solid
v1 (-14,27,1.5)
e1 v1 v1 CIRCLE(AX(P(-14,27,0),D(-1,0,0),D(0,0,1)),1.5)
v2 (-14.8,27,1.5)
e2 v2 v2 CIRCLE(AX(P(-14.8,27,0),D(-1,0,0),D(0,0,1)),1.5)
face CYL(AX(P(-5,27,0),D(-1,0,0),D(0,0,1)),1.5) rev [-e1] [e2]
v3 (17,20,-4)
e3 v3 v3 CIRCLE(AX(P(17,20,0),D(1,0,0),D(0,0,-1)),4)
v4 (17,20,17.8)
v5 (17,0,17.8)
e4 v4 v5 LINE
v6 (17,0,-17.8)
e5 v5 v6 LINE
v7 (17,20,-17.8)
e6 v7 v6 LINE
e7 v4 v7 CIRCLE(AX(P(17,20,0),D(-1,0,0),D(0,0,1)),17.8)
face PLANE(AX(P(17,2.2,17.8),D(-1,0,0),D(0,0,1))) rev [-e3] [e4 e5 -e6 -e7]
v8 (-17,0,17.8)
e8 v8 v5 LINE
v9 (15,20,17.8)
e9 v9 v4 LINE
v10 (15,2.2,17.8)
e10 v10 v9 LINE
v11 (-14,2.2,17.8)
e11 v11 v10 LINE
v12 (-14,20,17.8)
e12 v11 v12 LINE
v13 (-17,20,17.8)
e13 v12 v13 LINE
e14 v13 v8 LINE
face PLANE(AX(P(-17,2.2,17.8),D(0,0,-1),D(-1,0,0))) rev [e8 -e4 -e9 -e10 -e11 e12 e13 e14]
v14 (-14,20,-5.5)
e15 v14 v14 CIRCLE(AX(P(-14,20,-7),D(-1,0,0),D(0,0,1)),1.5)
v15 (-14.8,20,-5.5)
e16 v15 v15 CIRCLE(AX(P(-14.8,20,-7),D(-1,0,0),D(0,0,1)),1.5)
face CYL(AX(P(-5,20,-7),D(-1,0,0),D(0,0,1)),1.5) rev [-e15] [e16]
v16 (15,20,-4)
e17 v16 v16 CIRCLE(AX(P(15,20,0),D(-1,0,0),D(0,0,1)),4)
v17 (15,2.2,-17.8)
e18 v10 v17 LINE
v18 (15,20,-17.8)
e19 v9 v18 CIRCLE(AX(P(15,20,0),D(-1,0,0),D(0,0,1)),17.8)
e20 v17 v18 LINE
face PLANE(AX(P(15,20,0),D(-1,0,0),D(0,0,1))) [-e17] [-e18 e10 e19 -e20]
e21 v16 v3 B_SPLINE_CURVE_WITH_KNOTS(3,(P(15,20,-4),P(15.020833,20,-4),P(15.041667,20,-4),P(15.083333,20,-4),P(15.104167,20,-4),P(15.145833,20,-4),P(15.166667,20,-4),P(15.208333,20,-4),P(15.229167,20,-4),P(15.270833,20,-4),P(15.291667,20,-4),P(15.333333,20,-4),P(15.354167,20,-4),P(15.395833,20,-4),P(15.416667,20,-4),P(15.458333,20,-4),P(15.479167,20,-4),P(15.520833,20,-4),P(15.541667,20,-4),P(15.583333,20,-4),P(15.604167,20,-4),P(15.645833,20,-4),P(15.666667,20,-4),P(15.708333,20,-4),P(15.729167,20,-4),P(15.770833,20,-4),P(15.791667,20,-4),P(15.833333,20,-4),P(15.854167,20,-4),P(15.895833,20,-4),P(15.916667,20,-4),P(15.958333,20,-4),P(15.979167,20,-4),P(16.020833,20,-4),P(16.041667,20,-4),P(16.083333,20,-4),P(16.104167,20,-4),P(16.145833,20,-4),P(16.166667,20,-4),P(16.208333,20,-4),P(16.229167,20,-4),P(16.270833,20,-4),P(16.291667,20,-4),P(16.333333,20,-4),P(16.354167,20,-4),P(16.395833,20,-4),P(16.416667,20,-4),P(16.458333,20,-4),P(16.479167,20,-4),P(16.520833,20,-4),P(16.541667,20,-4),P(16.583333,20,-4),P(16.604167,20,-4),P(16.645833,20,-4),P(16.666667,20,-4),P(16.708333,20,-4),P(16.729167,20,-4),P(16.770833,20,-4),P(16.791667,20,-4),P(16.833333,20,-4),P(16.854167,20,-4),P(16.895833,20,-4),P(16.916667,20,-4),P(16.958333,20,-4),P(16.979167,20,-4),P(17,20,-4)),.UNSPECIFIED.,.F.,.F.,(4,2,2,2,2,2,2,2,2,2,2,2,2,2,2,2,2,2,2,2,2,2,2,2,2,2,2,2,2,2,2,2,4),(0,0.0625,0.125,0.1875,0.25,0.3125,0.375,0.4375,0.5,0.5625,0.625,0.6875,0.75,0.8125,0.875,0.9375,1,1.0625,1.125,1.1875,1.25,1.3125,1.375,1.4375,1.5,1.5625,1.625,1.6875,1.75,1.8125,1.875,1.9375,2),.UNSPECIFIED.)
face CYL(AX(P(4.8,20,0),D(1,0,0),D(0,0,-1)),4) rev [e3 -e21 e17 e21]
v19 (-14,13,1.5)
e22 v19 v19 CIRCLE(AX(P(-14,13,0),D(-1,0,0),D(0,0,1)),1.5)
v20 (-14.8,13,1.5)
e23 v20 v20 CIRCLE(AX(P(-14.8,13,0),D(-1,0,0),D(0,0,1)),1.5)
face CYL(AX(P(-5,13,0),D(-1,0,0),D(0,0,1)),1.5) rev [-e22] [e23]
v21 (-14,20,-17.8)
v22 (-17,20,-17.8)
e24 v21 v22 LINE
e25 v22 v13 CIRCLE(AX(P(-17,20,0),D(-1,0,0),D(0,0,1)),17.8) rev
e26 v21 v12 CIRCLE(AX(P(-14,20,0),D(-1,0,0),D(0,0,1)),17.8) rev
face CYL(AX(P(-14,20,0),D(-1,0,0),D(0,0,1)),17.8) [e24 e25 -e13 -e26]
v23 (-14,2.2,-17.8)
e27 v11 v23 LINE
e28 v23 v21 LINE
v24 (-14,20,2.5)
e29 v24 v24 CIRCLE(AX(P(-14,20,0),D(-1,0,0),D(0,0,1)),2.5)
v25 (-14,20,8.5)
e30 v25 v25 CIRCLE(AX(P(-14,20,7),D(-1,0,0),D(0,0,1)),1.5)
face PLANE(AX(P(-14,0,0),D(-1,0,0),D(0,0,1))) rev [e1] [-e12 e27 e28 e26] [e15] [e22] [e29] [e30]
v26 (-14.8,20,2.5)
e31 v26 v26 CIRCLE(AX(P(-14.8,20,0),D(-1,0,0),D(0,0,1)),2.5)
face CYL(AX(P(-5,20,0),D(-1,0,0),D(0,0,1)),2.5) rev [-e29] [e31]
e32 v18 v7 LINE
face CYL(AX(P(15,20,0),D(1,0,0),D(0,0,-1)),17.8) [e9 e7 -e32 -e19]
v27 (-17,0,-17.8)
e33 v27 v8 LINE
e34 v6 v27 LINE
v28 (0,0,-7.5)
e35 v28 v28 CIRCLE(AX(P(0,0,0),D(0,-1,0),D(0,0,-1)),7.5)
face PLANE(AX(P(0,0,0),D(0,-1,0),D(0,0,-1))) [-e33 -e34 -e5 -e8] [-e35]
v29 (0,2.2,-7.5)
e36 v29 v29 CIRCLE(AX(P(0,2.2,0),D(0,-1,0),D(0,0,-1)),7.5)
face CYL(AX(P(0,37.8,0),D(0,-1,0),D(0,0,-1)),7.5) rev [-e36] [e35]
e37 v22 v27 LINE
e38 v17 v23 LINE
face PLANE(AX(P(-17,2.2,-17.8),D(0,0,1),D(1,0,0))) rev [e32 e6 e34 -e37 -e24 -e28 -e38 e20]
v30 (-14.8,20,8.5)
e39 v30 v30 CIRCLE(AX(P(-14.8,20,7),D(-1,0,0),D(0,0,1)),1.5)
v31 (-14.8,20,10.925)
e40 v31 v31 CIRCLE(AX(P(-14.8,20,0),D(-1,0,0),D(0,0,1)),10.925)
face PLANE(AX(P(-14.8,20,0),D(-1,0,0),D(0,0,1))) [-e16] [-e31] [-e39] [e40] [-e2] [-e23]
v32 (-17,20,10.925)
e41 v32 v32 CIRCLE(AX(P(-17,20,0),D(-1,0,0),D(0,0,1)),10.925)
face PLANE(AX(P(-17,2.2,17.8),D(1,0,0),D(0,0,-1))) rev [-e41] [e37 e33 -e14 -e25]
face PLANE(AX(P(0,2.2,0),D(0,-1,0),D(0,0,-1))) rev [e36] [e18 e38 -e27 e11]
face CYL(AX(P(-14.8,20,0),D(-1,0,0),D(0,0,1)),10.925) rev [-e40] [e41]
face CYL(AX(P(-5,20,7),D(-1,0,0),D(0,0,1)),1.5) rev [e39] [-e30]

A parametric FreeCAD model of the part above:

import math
import FreeCAD as App
import Part
import Sketcher
Q = App.Units.Quantity

doc = App.newDocument("Part")
params = doc.addObject("Spreadsheet::Sheet", "Params")
for row, (alias, value) in enumerate([
    ("sketch1_width", "34 mm"),
    ("sketch1_height", "35.6 mm"),
    ("pad1_length", "2.2 mm"),
    ("sketch2_radius", "17.8 mm"),
    ("sketch2_width", "17.8 mm"),
    ("pad2_length", "3 mm"),
    ("sketch3_radius", "17.8 mm"),
    ("sketch3_width", "17.8 mm"),
    ("pad3_length", "2 mm"),
    ("sketch4_diameter", "5 mm"),
    ("sketch4_diameter2", "3 mm"),
    ("pocket1_length", "12 mm"),
    ("sketch5_diameter", "3 mm"),
    ("sketch5_diameter2", "5 mm"),
    ("sketch5_diameter3", "21.85 mm"),
    ("pocket2_length", "2.2 mm"),
    ("sketch6_diameter", "8 mm"),
    ("pocket3_length", "12.2 mm"),
    ("sketch7_diameter", "15 mm"),
], start=1):
    params.set(f"A{row}", alias)
    params.set(f"B{row}", "=" + value)
    params.setAlias(f"B{row}", alias)

body = doc.addObject("PartDesign::Body", "Body")

# Sketch on XZ plane
sketch1 = body.newObject("Sketcher::SketchObject", "Sketch")
sketch1.AttachmentSupport = (doc.getObject("XZ_Plane"), [""])
sketch1.MapMode = "FlatFace"
sketch1.addGeometry(Part.LineSegment(App.Vector(-17, -18, 0), App.Vector(-17, 18, 0)), False)
sketch1.addGeometry(Part.LineSegment(App.Vector(-17, 18, 0), App.Vector(17, 18, 0)), False)
sketch1.addGeometry(Part.LineSegment(App.Vector(17, 18, 0), App.Vector(17, -18, 0)), False)
sketch1.addGeometry(Part.LineSegment(App.Vector(17, -18, 0), App.Vector(-17, -18, 0)), False)
sketch1.addConstraint(Sketcher.Constraint("Coincident", 0, 2, 1, 1))
sketch1.addConstraint(Sketcher.Constraint("Coincident", 1, 2, 2, 1))
sketch1.addConstraint(Sketcher.Constraint("Coincident", 2, 2, 3, 1))
sketch1.addConstraint(Sketcher.Constraint("Coincident", 3, 2, 0, 1))
sketch1.addConstraint(Sketcher.Constraint("Vertical", 0))
sketch1.addConstraint(Sketcher.Constraint("Horizontal", 1))
sketch1.addConstraint(Sketcher.Constraint("Vertical", 2))
sketch1.addConstraint(Sketcher.Constraint("Horizontal", 3))
sketch1.addConstraint(Sketcher.Constraint("Symmetric", 0, 2, 2, 2, -1, 1))
sketch1.addConstraint(Sketcher.Constraint("DistanceX", 1, 1, 1, 2, Q("34 mm")))
sketch1.addConstraint(Sketcher.Constraint("DistanceY", 0, 1, 0, 2, Q("35.6 mm")))
sketch1.setExpression("Constraints[9]", "Params.sketch1_width")
sketch1.setExpression("Constraints[10]", "Params.sketch1_height")
pad1 = body.newObject("PartDesign::Pad", "Pad")
pad1.Profile = sketch1
pad1.setExpression("Length", "Params.pad1_length")
pad1.Reversed = True

# Sketch on YZ plane
sketch2 = body.newObject("Sketcher::SketchObject", "Sketch001")
sketch2.AttachmentSupport = (doc.getObject("YZ_Plane"), [""])
sketch2.MapMode = "FlatFace"
sketch2.AttachmentOffset = App.Placement(App.Vector(0, 0, -17), App.Rotation())
sketch2.addGeometry(Part.LineSegment(App.Vector(2, 18, 0), App.Vector(20, 18, 0)), False)
sketch2.addGeometry(Part.ArcOfCircle(Part.Circle(App.Vector(20, 0, 0), App.Vector(0, 0, 1), 18), math.radians(0), math.radians(90)), False)
sketch2.addGeometry(Part.ArcOfCircle(Part.Circle(App.Vector(20, 0, 0), App.Vector(0, 0, 1), 18), math.radians(-90), math.radians(0)), False)
sketch2.addGeometry(Part.LineSegment(App.Vector(20, -18, 0), App.Vector(2, -18, 0)), False)
sketch2.addGeometry(Part.LineSegment(App.Vector(2, -18, 0), App.Vector(2, 18, 0)), False)
sketch2.addConstraint(Sketcher.Constraint("Tangent", 0, 2, 1, 2))
sketch2.addConstraint(Sketcher.Constraint("Tangent", 1, 1, 2, 2))
sketch2.addConstraint(Sketcher.Constraint("Tangent", 2, 1, 3, 1))
sketch2.addConstraint(Sketcher.Constraint("Coincident", 3, 2, 4, 1))
sketch2.addConstraint(Sketcher.Constraint("Coincident", 4, 2, 0, 1))
sketch2.addConstraint(Sketcher.Constraint("Horizontal", 0))
sketch2.addConstraint(Sketcher.Constraint("Horizontal", 3))
sketch2.addConstraint(Sketcher.Constraint("Vertical", 4))
sketch2.addConstraint(Sketcher.Constraint("Equal", 1, 2))
sketch2.addConstraint(Sketcher.Constraint("PointOnObject", 1, 3, -1))
sketch2.addConstraint(Sketcher.Constraint("PointOnObject", 1, 1, -1))
sketch2.addConstraint(Sketcher.Constraint("Radius", 1, Q("17.8 mm")))
sketch2.addConstraint(Sketcher.Constraint("DistanceX", 0, 1, 0, 2, Q("17.8 mm")))
sketch2.addConstraint(Sketcher.Constraint("DistanceX", -1, 1, 1, 3, Q("20 mm")))
sketch2.setExpression("Constraints[11]", "Params.sketch2_radius")
sketch2.setExpression("Constraints[12]", "Params.sketch2_width")
pad2 = body.newObject("PartDesign::Pad", "Pad001")
pad2.Profile = sketch2
pad2.setExpression("Length", "Params.pad2_length")

# Sketch on YZ plane
sketch3 = body.newObject("Sketcher::SketchObject", "Sketch002")
sketch3.AttachmentSupport = (doc.getObject("YZ_Plane"), [""])
sketch3.MapMode = "FlatFace"
sketch3.AttachmentOffset = App.Placement(App.Vector(0, 0, 15), App.Rotation())
sketch3.addGeometry(Part.LineSegment(App.Vector(2, -18, 0), App.Vector(2, 18, 0)), False)
sketch3.addGeometry(Part.LineSegment(App.Vector(2, 18, 0), App.Vector(20, 18, 0)), False)
sketch3.addGeometry(Part.ArcOfCircle(Part.Circle(App.Vector(20, 0, 0), App.Vector(0, 0, 1), 18), math.radians(0), math.radians(90)), False)
sketch3.addGeometry(Part.ArcOfCircle(Part.Circle(App.Vector(20, 0, 0), App.Vector(0, 0, 1), 18), math.radians(-90), math.radians(0)), False)
sketch3.addGeometry(Part.LineSegment(App.Vector(20, -18, 0), App.Vector(2, -18, 0)), False)
sketch3.addConstraint(Sketcher.Constraint("Coincident", 0, 2, 1, 1))
sketch3.addConstraint(Sketcher.Constraint("Tangent", 1, 2, 2, 2))
sketch3.addConstraint(Sketcher.Constraint("Tangent", 2, 1, 3, 2))
sketch3.addConstraint(Sketcher.Constraint("Tangent", 3, 1, 4, 1))
sketch3.addConstraint(Sketcher.Constraint("Coincident", 4, 2, 0, 1))
sketch3.addConstraint(Sketcher.Constraint("Vertical", 0))
sketch3.addConstraint(Sketcher.Constraint("Horizontal", 1))
sketch3.addConstraint(Sketcher.Constraint("Horizontal", 4))
sketch3.addConstraint(Sketcher.Constraint("Equal", 2, 3))
sketch3.addConstraint(Sketcher.Constraint("PointOnObject", 2, 3, -1))
sketch3.addConstraint(Sketcher.Constraint("PointOnObject", 2, 1, -1))
sketch3.addConstraint(Sketcher.Constraint("Radius", 2, Q("17.8 mm")))
sketch3.addConstraint(Sketcher.Constraint("DistanceX", 1, 1, 1, 2, Q("17.8 mm")))
sketch3.addConstraint(Sketcher.Constraint("DistanceX", -1, 1, 2, 3, Q("20 mm")))
sketch3.setExpression("Constraints[11]", "Params.sketch3_radius")
sketch3.setExpression("Constraints[12]", "Params.sketch3_width")
pad3 = body.newObject("PartDesign::Pad", "Pad002")
pad3.Profile = sketch3
pad3.setExpression("Length", "Params.pad3_length")

# Sketch on YZ plane
sketch4 = body.newObject("Sketcher::SketchObject", "Sketch003")
sketch4.AttachmentSupport = (doc.getObject("YZ_Plane"), [""])
sketch4.MapMode = "FlatFace"
sketch4.AttachmentOffset = App.Placement(App.Vector(0, 0, -17), App.Rotation())
sketch4.addGeometry(Part.Circle(App.Vector(20, 0, 0), App.Vector(0, 0, 1), 2.5), False)
sketch4.addGeometry(Part.Circle(App.Vector(20, 7, 0), App.Vector(0, 0, 1), 1.5), False)
sketch4.addGeometry(Part.Circle(App.Vector(27, 0, 0), App.Vector(0, 0, 1), 1.5), False)
sketch4.addGeometry(Part.Circle(App.Vector(20, -7, 0), App.Vector(0, 0, 1), 1.5), False)
sketch4.addGeometry(Part.Circle(App.Vector(13, 0, 0), App.Vector(0, 0, 1), 1.5), False)
sketch4.addConstraint(Sketcher.Constraint("Equal", 1, 2))
sketch4.addConstraint(Sketcher.Constraint("Equal", 2, 3))
sketch4.addConstraint(Sketcher.Constraint("Equal", 3, 4))
sketch4.addConstraint(Sketcher.Constraint("Symmetric", 1, 3, 3, 3, -1))
sketch4.addConstraint(Sketcher.Constraint("PointOnObject", 0, 3, -1))
sketch4.addConstraint(Sketcher.Constraint("PointOnObject", 2, 3, -1))
sketch4.addConstraint(Sketcher.Constraint("PointOnObject", 4, 3, -1))
sketch4.addConstraint(Sketcher.Constraint("Vertical", 0, 3, 1, 3))
sketch4.addConstraint(Sketcher.Constraint("Diameter", 0, Q("5 mm")))
sketch4.addConstraint(Sketcher.Constraint("Diameter", 1, Q("3 mm")))
sketch4.addConstraint(Sketcher.Constraint("DistanceX", -1, 1, 0, 3, Q("20 mm")))
sketch4.addConstraint(Sketcher.Constraint("DistanceY", -1, 1, 1, 3, Q("7 mm")))
sketch4.addConstraint(Sketcher.Constraint("DistanceX", -1, 1, 2, 3, Q("27 mm")))
sketch4.addConstraint(Sketcher.Constraint("DistanceX", -1, 1, 4, 3, Q("13 mm")))
sketch4.setExpression("Constraints[8]", "Params.sketch4_diameter")
sketch4.setExpression("Constraints[9]", "Params.sketch4_diameter2")
pocket1 = body.newObject("PartDesign::Pocket", "Pocket")
pocket1.Profile = sketch4
pocket1.setExpression("Length", "Params.pocket1_length")
pocket1.Reversed = True

# Sketch on YZ plane
sketch5 = body.newObject("Sketcher::SketchObject", "Sketch004")
sketch5.AttachmentSupport = (doc.getObject("YZ_Plane"), [""])
sketch5.MapMode = "FlatFace"
sketch5.AttachmentOffset = App.Placement(App.Vector(0, 0, -17), App.Rotation())
sketch5.addGeometry(Part.Circle(App.Vector(20, 0, 0), App.Vector(0, 0, 1), 10.9), False)
sketch5.addGeometry(Part.Circle(App.Vector(20, -7, 0), App.Vector(0, 0, 1), 1.5), False)
sketch5.addGeometry(Part.Circle(App.Vector(13, 0, 0), App.Vector(0, 0, 1), 1.5), False)
sketch5.addGeometry(Part.Circle(App.Vector(20, 7, 0), App.Vector(0, 0, 1), 1.5), False)
sketch5.addGeometry(Part.Circle(App.Vector(20, 0, 0), App.Vector(0, 0, 1), 2.5), False)
sketch5.addGeometry(Part.Circle(App.Vector(27, 0, 0), App.Vector(0, 0, 1), 1.5), False)
sketch5.addConstraint(Sketcher.Constraint("Coincident", 4, 3, 0, 3))
sketch5.addConstraint(Sketcher.Constraint("Equal", 1, 2))
sketch5.addConstraint(Sketcher.Constraint("Equal", 2, 3))
sketch5.addConstraint(Sketcher.Constraint("Equal", 3, 5))
sketch5.addConstraint(Sketcher.Constraint("Symmetric", 1, 3, 3, 3, -1))
sketch5.addConstraint(Sketcher.Constraint("PointOnObject", 0, 3, -1))
sketch5.addConstraint(Sketcher.Constraint("PointOnObject", 2, 3, -1))
sketch5.addConstraint(Sketcher.Constraint("PointOnObject", 5, 3, -1))
sketch5.addConstraint(Sketcher.Constraint("Vertical", 0, 3, 1, 3))
sketch5.addConstraint(Sketcher.Constraint("Diameter", 1, Q("3 mm")))
sketch5.addConstraint(Sketcher.Constraint("Diameter", 4, Q("5 mm")))
sketch5.addConstraint(Sketcher.Constraint("Diameter", 0, Q("21.85 mm")))
sketch5.addConstraint(Sketcher.Constraint("DistanceX", -1, 1, 0, 3, Q("20 mm")))
sketch5.addConstraint(Sketcher.Constraint("DistanceY", 1, 3, -1, 1, Q("7 mm")))
sketch5.addConstraint(Sketcher.Constraint("DistanceX", -1, 1, 2, 3, Q("13 mm")))
sketch5.addConstraint(Sketcher.Constraint("DistanceX", -1, 1, 5, 3, Q("27 mm")))
sketch5.setExpression("Constraints[9]", "Params.sketch5_diameter")
sketch5.setExpression("Constraints[10]", "Params.sketch5_diameter2")
sketch5.setExpression("Constraints[11]", "Params.sketch5_diameter3")
pocket2 = body.newObject("PartDesign::Pocket", "Pocket001")
pocket2.Profile = sketch5
pocket2.setExpression("Length", "Params.pocket2_length")
pocket2.Reversed = True

# Sketch on YZ plane
sketch6 = body.newObject("Sketcher::SketchObject", "Sketch005")
sketch6.AttachmentSupport = (doc.getObject("YZ_Plane"), [""])
sketch6.MapMode = "FlatFace"
sketch6.AttachmentOffset = App.Placement(App.Vector(0, 0, 17), App.Rotation())
sketch6.addGeometry(Part.Circle(App.Vector(20, 0, 0), App.Vector(0, 0, 1), 4), False)
sketch6.addConstraint(Sketcher.Constraint("PointOnObject", 0, 3, -1))
sketch6.addConstraint(Sketcher.Constraint("Diameter", 0, Q("8 mm")))
sketch6.addConstraint(Sketcher.Constraint("DistanceX", -1, 1, 0, 3, Q("20 mm")))
sketch6.setExpression("Constraints[1]", "Params.sketch6_diameter")
pocket3 = body.newObject("PartDesign::Pocket", "Pocket002")
pocket3.Profile = sketch6
pocket3.setExpression("Length", "Params.pocket3_length")

# Sketch on XZ plane
sketch7 = body.newObject("Sketcher::SketchObject", "Sketch006")
sketch7.AttachmentSupport = (doc.getObject("XZ_Plane"), [""])
sketch7.MapMode = "FlatFace"
sketch7.addGeometry(Part.Circle(App.Vector(0, 0, 0), App.Vector(0, 0, 1), 8), False)
sketch7.addConstraint(Sketcher.Constraint("Coincident", 0, 3, -1, 1))
sketch7.addConstraint(Sketcher.Constraint("Diameter", 0, Q("15 mm")))
sketch7.setExpression("Constraints[1]", "Params.sketch7_diameter")
pocket4 = body.newObject("PartDesign::Pocket", "Pocket003")
pocket4.Profile = sketch7
pocket4.Type = "ThroughAll"
pocket4.Midplane = True

doc.recompute()
